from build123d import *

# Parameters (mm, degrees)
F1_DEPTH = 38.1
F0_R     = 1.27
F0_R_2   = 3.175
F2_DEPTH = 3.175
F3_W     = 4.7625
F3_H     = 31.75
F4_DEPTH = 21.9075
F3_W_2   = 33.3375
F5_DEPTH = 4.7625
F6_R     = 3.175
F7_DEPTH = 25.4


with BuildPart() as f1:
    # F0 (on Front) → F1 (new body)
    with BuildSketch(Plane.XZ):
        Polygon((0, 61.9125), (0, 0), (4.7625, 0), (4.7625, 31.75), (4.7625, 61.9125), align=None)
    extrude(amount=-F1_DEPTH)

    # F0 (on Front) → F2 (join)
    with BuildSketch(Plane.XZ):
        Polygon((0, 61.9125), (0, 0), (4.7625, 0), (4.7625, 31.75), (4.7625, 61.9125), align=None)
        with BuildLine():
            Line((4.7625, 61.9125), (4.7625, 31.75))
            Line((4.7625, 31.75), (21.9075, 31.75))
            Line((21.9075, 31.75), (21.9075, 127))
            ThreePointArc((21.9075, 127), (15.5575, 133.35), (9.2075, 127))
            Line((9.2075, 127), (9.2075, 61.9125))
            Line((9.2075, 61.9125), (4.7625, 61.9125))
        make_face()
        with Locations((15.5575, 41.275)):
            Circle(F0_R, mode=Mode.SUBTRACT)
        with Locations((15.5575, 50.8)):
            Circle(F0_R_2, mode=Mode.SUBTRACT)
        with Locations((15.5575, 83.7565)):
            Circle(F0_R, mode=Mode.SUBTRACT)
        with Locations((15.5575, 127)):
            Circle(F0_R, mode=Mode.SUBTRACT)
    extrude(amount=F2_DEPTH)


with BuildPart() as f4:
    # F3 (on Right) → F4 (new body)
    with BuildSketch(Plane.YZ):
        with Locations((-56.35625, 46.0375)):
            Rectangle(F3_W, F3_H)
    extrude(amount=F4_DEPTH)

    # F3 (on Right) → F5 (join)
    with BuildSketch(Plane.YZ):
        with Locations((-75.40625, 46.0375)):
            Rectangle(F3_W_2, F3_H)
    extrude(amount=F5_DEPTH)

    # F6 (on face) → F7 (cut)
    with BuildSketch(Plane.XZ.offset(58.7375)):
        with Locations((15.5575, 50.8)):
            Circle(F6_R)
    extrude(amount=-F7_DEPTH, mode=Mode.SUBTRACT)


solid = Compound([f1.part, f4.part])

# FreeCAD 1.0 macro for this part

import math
import FreeCAD as App
import Part
import Sketcher

V = App.Vector
Q = App.Units.Quantity


def add_polygon(sketch, points):
    """Adds a closed chain of lines whose ends are joined by coincident constraints."""
    first, n = sketch.GeometryCount, len(points)
    for a, b in zip(points, points[1:] + points[:1]):
        sketch.addGeometry(Part.LineSegment(App.Vector(*a, 0), App.Vector(*b, 0)), False)
    for i in range(n):
        sketch.addConstraint(Sketcher.Constraint("Coincident", first + i, 2, first + (i + 1) % n, 1))

doc = App.newDocument("Part")
params = doc.addObject("Spreadsheet::Sheet", "Params")
for row, (alias, value) in enumerate([
    ("sketch1_width", "0.1875 in"),
    ("sketch1_height", "2.4375 in"),
    ("pad1_length", "1.5 in"),
    ("sketch2_diameter", "0.1 in"),
    ("sketch2_diameter2", "0.25 in"),
    ("sketch2_radius", "0.25 in"),
    ("sketch2_height", "1.25 in"),
    ("sketch2_width", "0.1875 in"),
    ("pad2_length", "0.125 in"),
    ("sketch3_height", "1.25 in"),
    ("sketch3_width", "0.1875 in"),
    ("pad3_length", "0.8625 in"),
    ("sketch4_height", "1.25 in"),
    ("sketch4_width", "1.3125 in"),
    ("pad4_length", "0.1875 in"),
    ("sketch5_diameter", "0.25 in"),
    ("pocket1_length", "1 in"),
], start=1):
    params.set(f"A{row}", alias)
    params.set(f"B{row}", "=" + value)
    params.setAlias(f"B{row}", alias)

body = doc.addObject("PartDesign::Body", "Body")

sketch1 = body.newObject("Sketcher::SketchObject", "Sketch")
sketch1.AttachmentSupport = (doc.getObject("XZ_Plane"), [""])
sketch1.MapMode = "FlatFace"
add_polygon(sketch1, [(0, 61.9), (0, 0), (4.8, 0), (4.8, 61.9)])
sketch1.addConstraint(Sketcher.Constraint("Vertical", 0))
sketch1.addConstraint(Sketcher.Constraint("Horizontal", 1))
sketch1.addConstraint(Sketcher.Constraint("Vertical", 2))
sketch1.addConstraint(Sketcher.Constraint("Horizontal", 3))
sketch1.addConstraint(Sketcher.Constraint("Coincident", 0, 2, -1, 1))
sketch1.addConstraint(Sketcher.Constraint("DistanceX", 1, 1, 1, 2, Q("0.1875 in")))
sketch1.addConstraint(Sketcher.Constraint("DistanceY", 0, 2, 0, 1, Q("2.4375 in")))
sketch1.setExpression("Constraints[9]", "Params.sketch1_width")
sketch1.setExpression("Constraints[10]", "Params.sketch1_height")
pad1 = body.newObject("PartDesign::Pad", "Pad")
pad1.Profile = sketch1
pad1.setExpression("Length", "Params.pad1_length")
pad1.Reversed = True

sketch2 = body.newObject("Sketcher::SketchObject", "Sketch001")
sketch2.AttachmentSupport = (doc.getObject("XZ_Plane"), [""])
sketch2.MapMode = "FlatFace"
sketch2.addGeometry(Part.LineSegment(V(0, 61.9, 0), V(0, 0, 0)), False)
sketch2.addGeometry(Part.LineSegment(V(0, 0, 0), V(4.8, 0, 0)), False)
sketch2.addGeometry(Part.LineSegment(V(4.8, 0, 0), V(4.8, 31.8, 0)), False)
sketch2.addGeometry(Part.LineSegment(V(4.8, 31.8, 0), V(21.9, 31.8, 0)), False)
sketch2.addGeometry(Part.LineSegment(V(21.9, 31.8, 0), V(21.9, 127, 0)), False)
sketch2.addGeometry(Part.ArcOfCircle(Part.Circle(V(15.6, 127, 0), V(0, 0, 1), 6.3), math.radians(0), math.radians(180)), False)
sketch2.addGeometry(Part.LineSegment(V(9.2, 127, 0), V(9.2, 61.9, 0)), False)
sketch2.addGeometry(Part.LineSegment(V(9.2, 61.9, 0), V(0, 61.9, 0)), False)
sketch2.addGeometry(Part.Circle(V(15.6, 41.3, 0), V(0, 0, 1), 1.3), False)
sketch2.addGeometry(Part.Circle(V(15.6, 50.8, 0), V(0, 0, 1), 3.2), False)
sketch2.addGeometry(Part.Circle(V(15.6, 83.8, 0), V(0, 0, 1), 1.3), False)
sketch2.addGeometry(Part.Circle(V(15.6, 127, 0), V(0, 0, 1), 1.3), False)
sketch2.addConstraint(Sketcher.Constraint("Coincident", 0, 2, 1, 1))
sketch2.addConstraint(Sketcher.Constraint("Coincident", 1, 2, 2, 1))
sketch2.addConstraint(Sketcher.Constraint("Coincident", 2, 2, 3, 1))
sketch2.addConstraint(Sketcher.Constraint("Coincident", 3, 2, 4, 1))
sketch2.addConstraint(Sketcher.Constraint("Tangent", 4, 2, 5, 1))
sketch2.addConstraint(Sketcher.Constraint("Tangent", 5, 2, 6, 1))
sketch2.addConstraint(Sketcher.Constraint("Coincident", 6, 2, 7, 1))
sketch2.addConstraint(Sketcher.Constraint("Coincident", 7, 2, 0, 1))
sketch2.addConstraint(Sketcher.Constraint("Vertical", 0))
sketch2.addConstraint(Sketcher.Constraint("Horizontal", 1))
sketch2.addConstraint(Sketcher.Constraint("Vertical", 2))
sketch2.addConstraint(Sketcher.Constraint("Horizontal", 3))
sketch2.addConstraint(Sketcher.Constraint("Vertical", 4))
sketch2.addConstraint(Sketcher.Constraint("Vertical", 6))
sketch2.addConstraint(Sketcher.Constraint("Horizontal", 7))
sketch2.addConstraint(Sketcher.Constraint("Coincident", 0, 2, -1, 1))
sketch2.addConstraint(Sketcher.Constraint("Coincident", 11, 3, 5, 3))
sketch2.addConstraint(Sketcher.Constraint("Equal", 8, 10))
sketch2.addConstraint(Sketcher.Constraint("Equal", 10, 11))
sketch2.addConstraint(Sketcher.Constraint("Vertical", 5, 3, 8, 3))
sketch2.addConstraint(Sketcher.Constraint("Vertical", 8, 3, 9, 3))
sketch2.addConstraint(Sketcher.Constraint("Vertical", 9, 3, 10, 3))
sketch2.addConstraint(Sketcher.Constraint("Diameter", 8, Q("0.1 in")))
sketch2.addConstraint(Sketcher.Constraint("Diameter", 9, Q("0.25 in")))
sketch2.addConstraint(Sketcher.Constraint("Radius", 5, Q("0.25 in")))
sketch2.addConstraint(Sketcher.Constraint("DistanceY", -1, 1, 5, 3, Q("5 in")))
sketch2.addConstraint(Sketcher.Constraint("DistanceY", -1, 1, 9, 3, Q("2 in")))
sketch2.addConstraint(Sketcher.Constraint("DistanceY", 2, 1, 2, 2, Q("1.25 in")))
sketch2.addConstraint(Sketcher.Constraint("DistanceX", 1, 1, 1, 2, Q("0.1875 in")))
sketch2.addConstraint(Sketcher.Constraint("DistanceX", 3, 1, 3, 2, Q("0.675 in")))
sketch2.addConstraint(Sketcher.Constraint("DistanceY", 0, 2, 0, 1, Q("2.4375 in")))
sketch2.addConstraint(Sketcher.Constraint("DistanceY", 6, 2, 10, 3, Q("0.86 in")))
sketch2.addConstraint(Sketcher.Constraint("DistanceY", -1, 1, 8, 3, Q("1.625 in")))
sketch2.setExpression("Constraints[22]", "Params.sketch2_diameter")
sketch2.setExpression("Constraints[23]", "Params.sketch2_diameter2")
sketch2.setExpression("Constraints[24]", "Params.sketch2_radius")
sketch2.setExpression("Constraints[27]", "Params.sketch2_height")
sketch2.setExpression("Constraints[28]", "Params.sketch2_width")
pad2 = body.newObject("PartDesign::Pad", "Pad001")
pad2.Profile = sketch2
pad2.setExpression("Length", "Params.pad2_length")
body2 = doc.addObject("PartDesign::Body", "Body001")

sketch3 = body2.newObject("Sketcher::SketchObject", "Sketch002")
sketch3.AttachmentSupport = (doc.getObject("YZ_Plane001"), [""])
sketch3.MapMode = "FlatFace"
add_polygon(sketch3, [(-58.7, 61.9), (-58.7, 30.2), (-54, 30.2), (-54, 61.9)])
sketch3.addConstraint(Sketcher.Constraint("Vertical", 0))
sketch3.addConstraint(Sketcher.Constraint("Horizontal", 1))
sketch3.addConstraint(Sketcher.Constraint("Vertical", 2))
sketch3.addConstraint(Sketcher.Constraint("Horizontal", 3))
sketch3.addConstraint(Sketcher.Constraint("DistanceY", 0, 2, 0, 1, Q("1.25 in")))
sketch3.addConstraint(Sketcher.Constraint("DistanceX", 1, 1, 1, 2, Q("0.1875 in")))
sketch3.addConstraint(Sketcher.Constraint("DistanceX", 0, 2, -1, 1, Q("2.3125 in")))
sketch3.addConstraint(Sketcher.Constraint("DistanceY", -1, 1, 0, 2, Q("1.1875 in")))
sketch3.setExpression("Constraints[8]", "Params.sketch3_height")
sketch3.setExpression("Constraints[9]", "Params.sketch3_width")
pad3 = body2.newObject("PartDesign::Pad", "Pad002")
pad3.Profile = sketch3
pad3.setExpression("Length", "Params.pad3_length")

sketch4 = body2.newObject("Sketcher::SketchObject", "Sketch003")
sketch4.AttachmentSupport = (doc.getObject("YZ_Plane001"), [""])
sketch4.MapMode = "FlatFace"
add_polygon(sketch4, [(-92, 62), (-92, 30), (-59, 30), (-59, 62)])
sketch4.addConstraint(Sketcher.Constraint("Vertical", 0))
sketch4.addConstraint(Sketcher.Constraint("Horizontal", 1))
sketch4.addConstraint(Sketcher.Constraint("Vertical", 2))
sketch4.addConstraint(Sketcher.Constraint("Horizontal", 3))
sketch4.addConstraint(Sketcher.Constraint("DistanceY", 0, 2, 0, 1, Q("1.25 in")))
sketch4.addConstraint(Sketcher.Constraint("DistanceX", 1, 1, 1, 2, Q("1.3125 in")))
sketch4.addConstraint(Sketcher.Constraint("DistanceX", 0, 2, -1, 1, Q("3.625 in")))
sketch4.addConstraint(Sketcher.Constraint("DistanceY", -1, 1, 0, 2, Q("1.1875 in")))
sketch4.setExpression("Constraints[8]", "Params.sketch4_height")
sketch4.setExpression("Constraints[9]", "Params.sketch4_width")
pad4 = body2.newObject("PartDesign::Pad", "Pad003")
pad4.Profile = sketch4
pad4.setExpression("Length", "Params.pad4_length")

sketch5 = body2.newObject("Sketcher::SketchObject", "Sketch004")
sketch5.AttachmentSupport = (doc.getObject("XZ_Plane001"), [""])
sketch5.MapMode = "FlatFace"
sketch5.AttachmentOffset = App.Placement(V(0, 0, 2.3125 * 25.4), App.Rotation())
sketch5.addGeometry(Part.Circle(V(15.6, 50.8, 0), V(0, 0, 1), 3.2), False)
sketch5.addConstraint(Sketcher.Constraint("Diameter", 0, Q("0.25 in")))
sketch5.addConstraint(Sketcher.Constraint("DistanceY", -1, 1, 0, 3, Q("2 in")))
sketch5.addConstraint(Sketcher.Constraint("DistanceX", -1, 1, 0, 3, Q("0.6125 in")))
sketch5.setExpression("Constraints[0]", "Params.sketch5_diameter")
pocket1 = body2.newObject("PartDesign::Pocket", "Pocket")
pocket1.Profile = sketch5
pocket1.setExpression("Length", "Params.pocket1_length")

doc.recompute()
